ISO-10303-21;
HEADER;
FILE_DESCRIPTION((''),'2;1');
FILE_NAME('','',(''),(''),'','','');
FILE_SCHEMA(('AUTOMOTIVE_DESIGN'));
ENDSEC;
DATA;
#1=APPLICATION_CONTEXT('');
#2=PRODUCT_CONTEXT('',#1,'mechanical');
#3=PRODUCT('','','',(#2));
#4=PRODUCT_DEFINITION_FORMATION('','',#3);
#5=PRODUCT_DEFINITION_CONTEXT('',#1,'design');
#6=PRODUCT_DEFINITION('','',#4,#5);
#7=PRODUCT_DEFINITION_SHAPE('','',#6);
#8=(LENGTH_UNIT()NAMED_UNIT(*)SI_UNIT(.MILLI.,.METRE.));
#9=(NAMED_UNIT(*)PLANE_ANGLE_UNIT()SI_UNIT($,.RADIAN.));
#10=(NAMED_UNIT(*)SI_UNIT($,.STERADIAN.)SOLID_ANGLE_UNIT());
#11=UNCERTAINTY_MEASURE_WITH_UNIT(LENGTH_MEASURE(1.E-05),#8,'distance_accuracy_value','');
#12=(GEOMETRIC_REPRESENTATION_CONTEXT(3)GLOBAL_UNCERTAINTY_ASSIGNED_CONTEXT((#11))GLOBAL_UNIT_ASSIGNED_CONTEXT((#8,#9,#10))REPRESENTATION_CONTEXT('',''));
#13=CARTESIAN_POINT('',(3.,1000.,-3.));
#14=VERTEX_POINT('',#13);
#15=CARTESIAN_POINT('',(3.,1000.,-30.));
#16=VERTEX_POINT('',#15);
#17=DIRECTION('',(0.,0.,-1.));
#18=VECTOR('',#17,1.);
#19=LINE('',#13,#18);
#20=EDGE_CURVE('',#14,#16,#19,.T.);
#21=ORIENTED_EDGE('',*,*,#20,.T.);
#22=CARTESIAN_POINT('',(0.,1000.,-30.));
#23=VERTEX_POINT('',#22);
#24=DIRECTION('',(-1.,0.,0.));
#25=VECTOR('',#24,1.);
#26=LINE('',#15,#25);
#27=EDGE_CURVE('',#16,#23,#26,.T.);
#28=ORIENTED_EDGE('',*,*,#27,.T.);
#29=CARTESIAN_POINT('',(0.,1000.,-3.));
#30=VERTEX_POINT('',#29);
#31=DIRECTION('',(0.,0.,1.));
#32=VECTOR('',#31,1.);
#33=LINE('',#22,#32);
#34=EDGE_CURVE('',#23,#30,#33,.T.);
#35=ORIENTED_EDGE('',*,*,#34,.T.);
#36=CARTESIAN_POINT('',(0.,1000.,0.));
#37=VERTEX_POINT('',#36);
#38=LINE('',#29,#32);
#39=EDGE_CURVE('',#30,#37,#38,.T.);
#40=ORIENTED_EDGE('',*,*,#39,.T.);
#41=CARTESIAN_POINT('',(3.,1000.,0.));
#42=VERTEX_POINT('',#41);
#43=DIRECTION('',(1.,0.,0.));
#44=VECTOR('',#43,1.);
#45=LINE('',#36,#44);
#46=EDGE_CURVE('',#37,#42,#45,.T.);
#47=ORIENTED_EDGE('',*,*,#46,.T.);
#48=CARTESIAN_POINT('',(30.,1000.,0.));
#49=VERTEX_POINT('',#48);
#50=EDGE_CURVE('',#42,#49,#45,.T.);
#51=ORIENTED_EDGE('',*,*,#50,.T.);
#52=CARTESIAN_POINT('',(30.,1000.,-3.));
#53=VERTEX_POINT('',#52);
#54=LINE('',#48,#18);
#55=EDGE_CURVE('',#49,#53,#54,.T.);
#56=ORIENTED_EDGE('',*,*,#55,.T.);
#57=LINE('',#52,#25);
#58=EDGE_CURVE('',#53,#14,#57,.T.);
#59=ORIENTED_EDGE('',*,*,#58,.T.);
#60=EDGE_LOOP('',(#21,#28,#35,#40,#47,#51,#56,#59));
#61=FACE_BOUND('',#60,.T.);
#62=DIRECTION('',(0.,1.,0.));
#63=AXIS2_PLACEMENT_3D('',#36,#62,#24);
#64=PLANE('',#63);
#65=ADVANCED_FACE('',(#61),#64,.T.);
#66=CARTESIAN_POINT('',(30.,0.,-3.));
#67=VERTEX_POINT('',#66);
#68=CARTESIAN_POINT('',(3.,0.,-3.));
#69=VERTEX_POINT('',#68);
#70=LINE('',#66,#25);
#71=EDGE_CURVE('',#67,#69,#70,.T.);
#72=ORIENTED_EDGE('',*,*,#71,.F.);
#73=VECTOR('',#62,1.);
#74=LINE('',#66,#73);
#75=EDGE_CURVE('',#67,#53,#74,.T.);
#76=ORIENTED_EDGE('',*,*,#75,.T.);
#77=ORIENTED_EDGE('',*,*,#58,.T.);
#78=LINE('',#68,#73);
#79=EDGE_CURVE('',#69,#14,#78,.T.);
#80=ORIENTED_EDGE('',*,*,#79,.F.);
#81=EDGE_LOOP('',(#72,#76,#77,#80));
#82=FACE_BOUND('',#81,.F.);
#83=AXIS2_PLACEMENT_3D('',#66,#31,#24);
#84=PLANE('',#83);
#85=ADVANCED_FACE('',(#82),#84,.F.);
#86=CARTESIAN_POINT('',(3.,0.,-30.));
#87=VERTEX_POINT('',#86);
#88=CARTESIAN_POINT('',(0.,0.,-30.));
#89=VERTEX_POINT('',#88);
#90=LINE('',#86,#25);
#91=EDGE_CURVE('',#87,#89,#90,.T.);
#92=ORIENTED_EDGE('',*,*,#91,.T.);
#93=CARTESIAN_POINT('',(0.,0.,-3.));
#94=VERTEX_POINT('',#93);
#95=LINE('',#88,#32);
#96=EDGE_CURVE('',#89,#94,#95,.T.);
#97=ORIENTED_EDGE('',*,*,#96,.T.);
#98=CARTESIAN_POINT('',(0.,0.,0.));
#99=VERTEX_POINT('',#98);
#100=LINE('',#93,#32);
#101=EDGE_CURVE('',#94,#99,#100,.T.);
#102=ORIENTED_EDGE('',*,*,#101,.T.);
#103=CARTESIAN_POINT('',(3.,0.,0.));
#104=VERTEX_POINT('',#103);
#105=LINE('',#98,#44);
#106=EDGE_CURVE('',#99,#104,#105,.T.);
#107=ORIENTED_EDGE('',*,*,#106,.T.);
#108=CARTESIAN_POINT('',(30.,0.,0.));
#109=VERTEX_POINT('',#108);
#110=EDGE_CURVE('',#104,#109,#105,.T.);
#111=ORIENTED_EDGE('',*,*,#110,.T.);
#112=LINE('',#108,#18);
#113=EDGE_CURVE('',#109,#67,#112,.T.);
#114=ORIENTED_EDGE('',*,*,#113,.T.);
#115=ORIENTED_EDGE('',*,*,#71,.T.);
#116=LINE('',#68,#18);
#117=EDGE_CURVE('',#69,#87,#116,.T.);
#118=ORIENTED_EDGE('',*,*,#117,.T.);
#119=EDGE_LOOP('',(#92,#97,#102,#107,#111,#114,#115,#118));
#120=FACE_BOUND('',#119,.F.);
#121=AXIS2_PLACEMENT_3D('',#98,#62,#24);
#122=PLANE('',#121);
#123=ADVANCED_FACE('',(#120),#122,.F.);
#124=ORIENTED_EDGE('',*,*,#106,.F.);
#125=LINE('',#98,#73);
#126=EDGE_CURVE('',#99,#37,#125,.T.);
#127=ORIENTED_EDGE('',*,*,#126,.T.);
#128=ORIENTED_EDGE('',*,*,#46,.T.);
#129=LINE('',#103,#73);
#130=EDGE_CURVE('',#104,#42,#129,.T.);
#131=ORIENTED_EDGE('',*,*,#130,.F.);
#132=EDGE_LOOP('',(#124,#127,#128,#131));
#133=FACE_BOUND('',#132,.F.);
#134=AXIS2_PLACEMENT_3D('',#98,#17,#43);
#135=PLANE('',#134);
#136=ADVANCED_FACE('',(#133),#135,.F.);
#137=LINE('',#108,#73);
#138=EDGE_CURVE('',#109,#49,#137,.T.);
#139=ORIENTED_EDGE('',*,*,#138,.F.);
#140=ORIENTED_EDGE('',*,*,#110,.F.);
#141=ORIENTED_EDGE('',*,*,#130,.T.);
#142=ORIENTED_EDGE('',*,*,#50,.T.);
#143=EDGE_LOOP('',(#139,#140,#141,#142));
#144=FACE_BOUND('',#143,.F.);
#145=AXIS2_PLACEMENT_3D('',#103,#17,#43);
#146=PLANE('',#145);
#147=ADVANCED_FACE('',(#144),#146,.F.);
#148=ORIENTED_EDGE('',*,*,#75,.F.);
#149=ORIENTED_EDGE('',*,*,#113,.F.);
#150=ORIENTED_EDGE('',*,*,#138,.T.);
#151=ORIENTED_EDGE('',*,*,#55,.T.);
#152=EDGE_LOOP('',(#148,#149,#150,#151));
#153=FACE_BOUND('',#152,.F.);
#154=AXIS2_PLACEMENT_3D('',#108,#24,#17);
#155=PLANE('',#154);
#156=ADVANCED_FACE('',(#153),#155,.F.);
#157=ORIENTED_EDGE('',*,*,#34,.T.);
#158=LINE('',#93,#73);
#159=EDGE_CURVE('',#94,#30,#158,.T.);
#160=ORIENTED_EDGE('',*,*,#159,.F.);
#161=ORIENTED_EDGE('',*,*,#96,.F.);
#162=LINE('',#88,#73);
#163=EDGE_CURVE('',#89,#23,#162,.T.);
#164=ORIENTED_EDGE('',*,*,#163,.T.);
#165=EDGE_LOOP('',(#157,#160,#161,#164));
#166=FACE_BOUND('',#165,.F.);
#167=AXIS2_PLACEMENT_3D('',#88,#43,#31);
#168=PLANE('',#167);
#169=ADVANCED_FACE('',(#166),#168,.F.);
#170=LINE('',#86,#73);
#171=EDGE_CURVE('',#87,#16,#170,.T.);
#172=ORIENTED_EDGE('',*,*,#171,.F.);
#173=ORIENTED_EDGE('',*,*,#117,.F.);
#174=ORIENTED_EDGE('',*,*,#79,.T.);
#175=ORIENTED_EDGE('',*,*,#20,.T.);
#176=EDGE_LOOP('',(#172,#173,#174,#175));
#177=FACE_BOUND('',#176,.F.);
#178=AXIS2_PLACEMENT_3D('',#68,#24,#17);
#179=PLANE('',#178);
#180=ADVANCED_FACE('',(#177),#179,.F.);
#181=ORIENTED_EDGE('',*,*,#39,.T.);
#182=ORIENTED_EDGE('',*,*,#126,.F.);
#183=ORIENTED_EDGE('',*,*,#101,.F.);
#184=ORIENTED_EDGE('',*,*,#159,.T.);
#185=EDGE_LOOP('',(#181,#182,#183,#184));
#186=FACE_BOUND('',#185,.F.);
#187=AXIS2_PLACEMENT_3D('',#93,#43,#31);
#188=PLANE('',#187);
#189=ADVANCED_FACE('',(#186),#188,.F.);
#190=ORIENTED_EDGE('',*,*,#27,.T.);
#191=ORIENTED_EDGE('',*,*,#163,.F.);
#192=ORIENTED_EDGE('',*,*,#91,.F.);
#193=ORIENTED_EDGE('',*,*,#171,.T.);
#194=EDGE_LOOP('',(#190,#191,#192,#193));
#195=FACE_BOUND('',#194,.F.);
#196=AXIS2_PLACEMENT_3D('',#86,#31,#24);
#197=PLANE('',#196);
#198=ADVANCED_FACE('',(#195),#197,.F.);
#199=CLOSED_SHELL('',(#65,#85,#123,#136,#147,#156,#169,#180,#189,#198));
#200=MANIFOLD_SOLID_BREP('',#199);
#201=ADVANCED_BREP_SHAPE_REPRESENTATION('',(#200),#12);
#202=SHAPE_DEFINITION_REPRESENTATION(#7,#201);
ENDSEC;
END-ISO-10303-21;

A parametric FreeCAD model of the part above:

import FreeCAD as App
import Part
import Sketcher
from FreeCAD import Vector
Q = App.Units.Quantity


def add_polygon(sketch, points):
    """Adds a closed chain of lines whose ends are joined by coincident constraints."""
    first, n = sketch.GeometryCount, len(points)
    for a, b in zip(points, points[1:] + points[:1]):
        sketch.addGeometry(Part.LineSegment(App.Vector(*a, 0), App.Vector(*b, 0)), False)
    for i in range(n):
        sketch.addConstraint(Sketcher.Constraint("Coincident", first + i, 2, first + (i + 1) % n, 1))

doc = App.newDocument("Part")
body = doc.addObject("PartDesign::Body", "Body")

# Sketch on XZ plane
sketch1 = body.newObject("Sketcher::SketchObject", "Sketch")
sketch1.AttachmentSupport = (doc.getObject("XZ_Plane"), [""])
sketch1.MapMode = "FlatFace"
add_polygon(sketch1, [(0, -30), (0, 0), (30, 0), (30, -3), (3, -3), (3, -30)])  # lines 0-5
sketch1.addConstraint(Sketcher.Constraint("Vertical", 0))
sketch1.addConstraint(Sketcher.Constraint("Horizontal", 1))
sketch1.addConstraint(Sketcher.Constraint("Vertical", 2))
sketch1.addConstraint(Sketcher.Constraint("Horizontal", 3))
sketch1.addConstraint(Sketcher.Constraint("Vertical", 4))
sketch1.addConstraint(Sketcher.Constraint("Horizontal", 5))
sketch1.addConstraint(Sketcher.Constraint("Coincident", 0, 2, -1, 1))
sketch1.addConstraint(Sketcher.Constraint("Equal", 1, 0))
sketch1.addConstraint(Sketcher.Constraint("Equal", 5, 2))
sketch1.addConstraint(Sketcher.Constraint("DistanceX", 1, 1, 1, 2, Q("30 mm")))
sketch1.addConstraint(Sketcher.Constraint("DistanceX", 5, 2, 5, 1, Q("3 mm")))
pad1 = body.newObject("PartDesign::Pad", "Pad")
pad1.Profile = sketch1
pad1.Length = 1000
pad1.Reversed = True

doc.recompute()
